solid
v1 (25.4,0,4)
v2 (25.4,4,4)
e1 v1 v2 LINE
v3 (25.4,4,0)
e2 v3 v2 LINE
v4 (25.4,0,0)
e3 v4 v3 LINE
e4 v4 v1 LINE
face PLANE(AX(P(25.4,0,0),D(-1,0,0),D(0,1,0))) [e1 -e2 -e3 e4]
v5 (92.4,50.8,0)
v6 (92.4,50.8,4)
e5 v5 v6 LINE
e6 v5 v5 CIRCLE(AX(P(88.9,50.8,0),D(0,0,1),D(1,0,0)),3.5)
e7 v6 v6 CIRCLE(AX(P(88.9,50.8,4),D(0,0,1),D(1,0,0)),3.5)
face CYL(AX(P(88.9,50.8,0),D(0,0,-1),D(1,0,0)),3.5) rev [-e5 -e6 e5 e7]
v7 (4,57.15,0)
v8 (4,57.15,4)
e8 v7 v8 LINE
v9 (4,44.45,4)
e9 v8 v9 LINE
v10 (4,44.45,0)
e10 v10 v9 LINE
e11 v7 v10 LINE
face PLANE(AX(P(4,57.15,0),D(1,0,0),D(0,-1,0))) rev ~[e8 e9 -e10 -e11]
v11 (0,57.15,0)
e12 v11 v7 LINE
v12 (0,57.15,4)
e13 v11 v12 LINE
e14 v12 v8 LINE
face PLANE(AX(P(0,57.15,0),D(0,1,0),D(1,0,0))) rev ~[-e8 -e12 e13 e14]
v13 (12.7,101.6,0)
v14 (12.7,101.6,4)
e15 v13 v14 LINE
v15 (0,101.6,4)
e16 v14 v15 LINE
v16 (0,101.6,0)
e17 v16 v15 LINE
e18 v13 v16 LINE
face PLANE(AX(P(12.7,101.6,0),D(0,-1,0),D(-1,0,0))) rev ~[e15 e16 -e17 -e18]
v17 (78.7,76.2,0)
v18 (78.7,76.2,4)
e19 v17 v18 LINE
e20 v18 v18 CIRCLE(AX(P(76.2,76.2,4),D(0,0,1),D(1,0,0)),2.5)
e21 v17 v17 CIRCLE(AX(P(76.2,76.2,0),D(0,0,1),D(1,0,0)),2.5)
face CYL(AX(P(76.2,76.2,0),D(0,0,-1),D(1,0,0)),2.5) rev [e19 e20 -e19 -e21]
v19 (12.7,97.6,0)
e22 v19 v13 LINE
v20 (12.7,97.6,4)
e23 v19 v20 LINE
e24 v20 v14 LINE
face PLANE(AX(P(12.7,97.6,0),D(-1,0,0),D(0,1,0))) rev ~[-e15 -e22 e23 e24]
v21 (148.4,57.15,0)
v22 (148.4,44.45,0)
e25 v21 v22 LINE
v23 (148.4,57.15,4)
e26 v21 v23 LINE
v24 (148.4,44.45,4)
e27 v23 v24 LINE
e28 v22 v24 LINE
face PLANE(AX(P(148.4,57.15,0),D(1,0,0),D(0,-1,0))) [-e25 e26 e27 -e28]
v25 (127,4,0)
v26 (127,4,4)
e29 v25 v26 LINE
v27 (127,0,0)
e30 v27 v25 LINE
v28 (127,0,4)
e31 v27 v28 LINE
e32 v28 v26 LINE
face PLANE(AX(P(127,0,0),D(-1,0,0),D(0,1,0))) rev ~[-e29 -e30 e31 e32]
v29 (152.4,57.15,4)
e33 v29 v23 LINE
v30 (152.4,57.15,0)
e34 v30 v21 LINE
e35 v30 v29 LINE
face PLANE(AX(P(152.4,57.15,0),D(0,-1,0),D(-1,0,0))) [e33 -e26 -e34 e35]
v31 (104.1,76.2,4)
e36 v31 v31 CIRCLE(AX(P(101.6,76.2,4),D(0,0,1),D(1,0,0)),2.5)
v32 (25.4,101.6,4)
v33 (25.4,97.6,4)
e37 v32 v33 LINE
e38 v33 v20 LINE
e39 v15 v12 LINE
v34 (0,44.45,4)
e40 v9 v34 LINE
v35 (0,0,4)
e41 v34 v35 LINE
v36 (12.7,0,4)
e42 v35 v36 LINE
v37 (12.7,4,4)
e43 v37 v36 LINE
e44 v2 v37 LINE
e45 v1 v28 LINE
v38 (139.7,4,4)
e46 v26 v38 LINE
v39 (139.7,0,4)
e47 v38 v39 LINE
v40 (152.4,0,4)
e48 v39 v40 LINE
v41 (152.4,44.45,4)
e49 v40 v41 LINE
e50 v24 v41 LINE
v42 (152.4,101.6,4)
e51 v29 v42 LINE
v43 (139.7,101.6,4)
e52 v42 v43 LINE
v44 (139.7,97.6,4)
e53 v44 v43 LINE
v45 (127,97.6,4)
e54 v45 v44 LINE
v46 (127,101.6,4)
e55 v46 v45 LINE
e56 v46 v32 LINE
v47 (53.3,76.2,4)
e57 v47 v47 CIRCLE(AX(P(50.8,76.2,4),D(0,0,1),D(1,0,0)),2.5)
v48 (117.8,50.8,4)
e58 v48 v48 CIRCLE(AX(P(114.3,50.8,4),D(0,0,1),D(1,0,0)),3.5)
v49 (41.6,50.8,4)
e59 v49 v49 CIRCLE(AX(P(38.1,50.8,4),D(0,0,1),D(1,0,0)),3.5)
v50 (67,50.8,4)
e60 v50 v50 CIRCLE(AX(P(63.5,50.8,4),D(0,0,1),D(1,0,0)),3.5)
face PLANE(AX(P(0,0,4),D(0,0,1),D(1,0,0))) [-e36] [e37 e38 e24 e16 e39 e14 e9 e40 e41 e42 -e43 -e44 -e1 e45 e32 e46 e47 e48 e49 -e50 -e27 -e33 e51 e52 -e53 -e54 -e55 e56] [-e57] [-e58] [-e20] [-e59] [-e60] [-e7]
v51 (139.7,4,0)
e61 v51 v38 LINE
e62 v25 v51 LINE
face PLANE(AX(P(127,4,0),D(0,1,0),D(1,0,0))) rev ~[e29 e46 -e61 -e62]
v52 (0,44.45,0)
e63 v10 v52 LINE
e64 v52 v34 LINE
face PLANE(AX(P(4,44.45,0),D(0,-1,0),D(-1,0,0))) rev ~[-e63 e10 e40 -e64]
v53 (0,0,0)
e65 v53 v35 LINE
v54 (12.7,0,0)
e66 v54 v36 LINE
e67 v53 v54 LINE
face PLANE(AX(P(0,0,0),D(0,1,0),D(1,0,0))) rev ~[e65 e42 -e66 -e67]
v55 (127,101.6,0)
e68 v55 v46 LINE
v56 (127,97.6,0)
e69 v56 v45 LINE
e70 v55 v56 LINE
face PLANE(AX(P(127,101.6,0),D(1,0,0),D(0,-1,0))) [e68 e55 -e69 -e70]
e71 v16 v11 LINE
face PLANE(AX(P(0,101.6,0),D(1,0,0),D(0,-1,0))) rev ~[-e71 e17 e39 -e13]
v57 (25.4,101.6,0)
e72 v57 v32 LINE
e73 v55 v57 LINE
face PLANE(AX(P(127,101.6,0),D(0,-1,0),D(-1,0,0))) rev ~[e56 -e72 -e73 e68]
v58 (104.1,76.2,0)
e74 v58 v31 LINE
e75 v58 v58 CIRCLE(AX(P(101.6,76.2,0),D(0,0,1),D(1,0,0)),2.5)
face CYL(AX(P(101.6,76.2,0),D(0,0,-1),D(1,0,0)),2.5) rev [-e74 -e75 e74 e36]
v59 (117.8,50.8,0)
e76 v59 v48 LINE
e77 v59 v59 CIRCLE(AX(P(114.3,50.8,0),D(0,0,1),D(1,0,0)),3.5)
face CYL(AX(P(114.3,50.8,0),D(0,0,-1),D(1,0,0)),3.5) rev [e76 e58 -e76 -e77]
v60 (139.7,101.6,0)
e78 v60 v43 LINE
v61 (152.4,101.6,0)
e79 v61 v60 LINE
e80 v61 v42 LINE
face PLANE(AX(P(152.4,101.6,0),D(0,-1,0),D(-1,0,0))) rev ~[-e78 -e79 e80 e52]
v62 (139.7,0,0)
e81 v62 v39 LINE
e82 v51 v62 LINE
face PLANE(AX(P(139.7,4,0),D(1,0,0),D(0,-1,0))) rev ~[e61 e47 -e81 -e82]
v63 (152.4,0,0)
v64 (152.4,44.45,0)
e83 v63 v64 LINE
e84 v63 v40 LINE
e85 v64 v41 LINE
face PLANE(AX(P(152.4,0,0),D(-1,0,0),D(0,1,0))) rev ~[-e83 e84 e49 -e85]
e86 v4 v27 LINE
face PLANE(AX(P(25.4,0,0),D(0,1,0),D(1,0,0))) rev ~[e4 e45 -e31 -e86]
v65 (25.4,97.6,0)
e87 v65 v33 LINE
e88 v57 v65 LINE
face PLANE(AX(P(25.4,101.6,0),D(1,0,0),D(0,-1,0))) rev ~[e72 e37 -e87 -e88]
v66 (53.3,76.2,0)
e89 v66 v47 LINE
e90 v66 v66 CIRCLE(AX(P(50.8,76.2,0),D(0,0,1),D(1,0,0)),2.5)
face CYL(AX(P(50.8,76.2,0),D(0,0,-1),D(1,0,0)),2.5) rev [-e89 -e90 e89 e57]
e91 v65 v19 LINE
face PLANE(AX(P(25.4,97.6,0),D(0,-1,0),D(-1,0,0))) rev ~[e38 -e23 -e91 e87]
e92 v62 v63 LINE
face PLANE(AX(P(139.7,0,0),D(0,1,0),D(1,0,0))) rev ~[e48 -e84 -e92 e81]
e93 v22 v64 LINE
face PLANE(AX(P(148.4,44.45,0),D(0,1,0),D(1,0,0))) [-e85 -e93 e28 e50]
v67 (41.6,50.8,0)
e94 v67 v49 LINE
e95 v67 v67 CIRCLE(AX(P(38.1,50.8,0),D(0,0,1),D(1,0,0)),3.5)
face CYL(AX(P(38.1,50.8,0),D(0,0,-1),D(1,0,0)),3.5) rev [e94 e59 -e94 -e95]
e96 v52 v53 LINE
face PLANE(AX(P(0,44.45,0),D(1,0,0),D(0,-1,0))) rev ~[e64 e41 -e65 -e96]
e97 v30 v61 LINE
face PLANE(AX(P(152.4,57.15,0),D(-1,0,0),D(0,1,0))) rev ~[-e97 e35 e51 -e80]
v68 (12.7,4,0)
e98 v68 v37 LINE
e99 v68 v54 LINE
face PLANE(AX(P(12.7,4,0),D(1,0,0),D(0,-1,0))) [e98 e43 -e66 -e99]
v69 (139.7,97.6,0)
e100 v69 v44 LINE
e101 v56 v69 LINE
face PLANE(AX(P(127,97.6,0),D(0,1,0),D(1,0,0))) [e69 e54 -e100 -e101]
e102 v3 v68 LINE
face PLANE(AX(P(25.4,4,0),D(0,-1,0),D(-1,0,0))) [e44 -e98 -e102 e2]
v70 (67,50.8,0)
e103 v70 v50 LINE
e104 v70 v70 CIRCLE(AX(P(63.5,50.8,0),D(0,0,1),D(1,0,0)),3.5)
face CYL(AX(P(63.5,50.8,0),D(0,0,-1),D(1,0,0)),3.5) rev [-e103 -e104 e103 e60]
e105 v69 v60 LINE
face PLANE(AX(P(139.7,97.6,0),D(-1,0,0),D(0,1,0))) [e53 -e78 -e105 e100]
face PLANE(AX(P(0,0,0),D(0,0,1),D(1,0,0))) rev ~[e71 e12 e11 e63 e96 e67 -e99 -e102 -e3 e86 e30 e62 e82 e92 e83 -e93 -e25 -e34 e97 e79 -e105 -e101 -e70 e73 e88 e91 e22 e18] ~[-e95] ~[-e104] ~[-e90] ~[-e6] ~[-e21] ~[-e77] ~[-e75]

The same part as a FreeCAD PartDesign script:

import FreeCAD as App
import Part
import Sketcher

V = App.Vector
Q = App.Units.Quantity


def add_polygon(sketch, points):
    """Adds a closed chain of lines whose ends are joined by coincident constraints."""
    first, n = sketch.GeometryCount, len(points)
    for a, b in zip(points, points[1:] + points[:1]):
        sketch.addGeometry(Part.LineSegment(App.Vector(*a, 0), App.Vector(*b, 0)), False)
    for i in range(n):
        sketch.addConstraint(Sketcher.Constraint("Coincident", first + i, 2, first + (i + 1) % n, 1))

doc = App.newDocument("Part")
body = doc.addObject("PartDesign::Body", "Body")

# Sketch on XY plane
sketch1 = body.newObject("Sketcher::SketchObject", "Sketch")
sketch1.AttachmentSupport = (doc.getObject("XY_Plane"), [""])
sketch1.MapMode = "FlatFace"
add_polygon(sketch1, [(0, 44.5), (0, 0), (12.7, 0), (12.7, 4), (25.4, 4), (25.4, 0), (127, 0), (127, 4), (139.7, 4), (139.7, 0), (152.4, 0), (152.4, 44.5), (148.4, 44.5), (148.4, 57.1), (152.4, 57.1), (152.4, 101.6), (139.7, 101.6), (139.7, 97.6), (127, 97.6), (127, 101.6), (25.4, 101.6), (25.4, 97.6), (12.7, 97.6), (12.7, 101.6), (0, 101.6), (0, 57.1), (4, 57.1), (4, 44.5)])  # lines 0-27
sketch1.addGeometry(Part.Circle(V(38.1, 50.8, 0), V(0, 0, 1), 3.5), False)  # 28
sketch1.addGeometry(Part.Circle(V(63.5, 50.8, 0), V(0, 0, 1), 3.5), False)  # 29
sketch1.addGeometry(Part.Circle(V(88.9, 50.8, 0), V(0, 0, 1), 3.5), False)  # 30
sketch1.addGeometry(Part.Circle(V(114.3, 50.8, 0), V(0, 0, 1), 3.5), False)  # 31
sketch1.addGeometry(Part.Circle(V(50.8, 76.2, 0), V(0, 0, 1), 2.5), False)  # 32
sketch1.addGeometry(Part.Circle(V(76.2, 76.2, 0), V(0, 0, 1), 2.5), False)  # 33
sketch1.addGeometry(Part.Circle(V(101.6, 76.2, 0), V(0, 0, 1), 2.5), False)  # 34
sketch1.addConstraint([
    Sketcher.Constraint("Vertical", 0),
    Sketcher.Constraint("Horizontal", 1),
    Sketcher.Constraint("Vertical", 2),
    Sketcher.Constraint("Horizontal", 3),
    Sketcher.Constraint("Vertical", 4),
    Sketcher.Constraint("Horizontal", 5),
    Sketcher.Constraint("Vertical", 6),
    Sketcher.Constraint("Horizontal", 7),
    Sketcher.Constraint("Vertical", 8),
    Sketcher.Constraint("Horizontal", 9),
    Sketcher.Constraint("Vertical", 10),
    Sketcher.Constraint("Horizontal", 11),
    Sketcher.Constraint("Vertical", 12),
    Sketcher.Constraint("Horizontal", 13),
    Sketcher.Constraint("Vertical", 14),
    Sketcher.Constraint("Horizontal", 15),
    Sketcher.Constraint("Vertical", 16),
    Sketcher.Constraint("Horizontal", 17),
    Sketcher.Constraint("Vertical", 18),
    Sketcher.Constraint("Horizontal", 19),
    Sketcher.Constraint("Vertical", 20),
    Sketcher.Constraint("Horizontal", 21),
    Sketcher.Constraint("Vertical", 22),
    Sketcher.Constraint("Horizontal", 23),
    Sketcher.Constraint("Vertical", 24),
    Sketcher.Constraint("Horizontal", 25),
    Sketcher.Constraint("Vertical", 26),
    Sketcher.Constraint("Horizontal", 27),
    Sketcher.Constraint("Coincident", 0, 2, -1, 1),
    Sketcher.Constraint("Equal", 28, 29),
    Sketcher.Constraint("Equal", 29, 30),
    Sketcher.Constraint("Equal", 30, 31),
    Sketcher.Constraint("Equal", 32, 33),
    Sketcher.Constraint("Equal", 33, 34),
    Sketcher.Constraint("PointOnObject", 4, 2, -1),
    Sketcher.Constraint("PointOnObject", 8, 2, -1),
    Sketcher.Constraint("PointOnObject", 23, 2, -2),
    Sketcher.Constraint("Horizontal", 28, 3, 29, 3),
    Sketcher.Constraint("Horizontal", 29, 3, 30, 3),
    Sketcher.Constraint("Horizontal", 30, 3, 31, 3),
    Sketcher.Constraint("Horizontal", 32, 3, 33, 3),
    Sketcher.Constraint("Horizontal", 33, 3, 34, 3),
    Sketcher.Constraint("Horizontal", 3, 2, 6, 2),
    Sketcher.Constraint("Horizontal", 15, 2, 18, 2),
    Sketcher.Constraint("Horizontal", 17, 2, 20, 2),
    Sketcher.Constraint("Horizontal", 19, 2, 22, 2),
    Sketcher.Constraint("Horizontal", 13, 2, 24, 2),
    Sketcher.Constraint("Horizontal", 11, 2, 26, 2),
    Sketcher.Constraint("Vertical", 10, 2, 13, 2),
    Sketcher.Constraint("Vertical", 8, 2, 15, 2),
    Sketcher.Constraint("Vertical", 6, 2, 17, 2),
    Sketcher.Constraint("Vertical", 4, 2, 19, 2),
    Sketcher.Constraint("Vertical", 2, 2, 21, 2),
    Sketcher.Constraint("Equal", 1, 3),
    Sketcher.Constraint("Equal", 3, 7),
    Sketcher.Constraint("Equal", 7, 9),
    Sketcher.Constraint("Equal", 13, 25),
    Sketcher.Constraint("Equal", 27, 2),
    Sketcher.Constraint("Equal", 23, 12),
    Sketcher.Constraint("Equal", 10, 14),
    Sketcher.Constraint("Equal", 8, 16),
    Sketcher.Constraint("DistanceX", 5, 1, 5, 2, Q("4 in")),
    Sketcher.Constraint("DistanceX", 1, 1, 1, 2, Q("0.5 in")),
    Sketcher.Constraint("DistanceY", -1, 1, 28, 3, Q("2 in")),
    Sketcher.Constraint("DistanceX", -1, 1, 32, 3, Q("2 in")),
    Sketcher.Constraint("DistanceX", -1, 1, 34, 3, Q("4 in")),
    Sketcher.Constraint("DistanceY", -1, 1, 14, 2, Q("4 in")),
    Sketcher.Constraint("DistanceX", 28, 3, 29, 3, Q("1 in")),
    Sketcher.Constraint("DistanceX", 29, 3, 30, 3, Q("1 in")),
    Sketcher.Constraint("DistanceX", 30, 3, 31, 3, Q("1 in")),
    Sketcher.Constraint("DistanceY", 28, 3, 32, 3, Q("1 in")),
    Sketcher.Constraint("DistanceX", 32, 3, 33, 3, Q("1 in")),
    Sketcher.Constraint("DistanceX", 1, 2, 28, 3, Q("1 in")),
    Sketcher.Constraint("Diameter", 28, Q("0.2756 in")),
    Sketcher.Constraint("Diameter", 32, 5.0),
    Sketcher.Constraint("DistanceX", 11, 2, 11, 1, 4.0),
])
pad1 = body.newObject("PartDesign::Pad", "Pad")
pad1.Profile = sketch1
pad1.Length = 4

doc.recompute()
